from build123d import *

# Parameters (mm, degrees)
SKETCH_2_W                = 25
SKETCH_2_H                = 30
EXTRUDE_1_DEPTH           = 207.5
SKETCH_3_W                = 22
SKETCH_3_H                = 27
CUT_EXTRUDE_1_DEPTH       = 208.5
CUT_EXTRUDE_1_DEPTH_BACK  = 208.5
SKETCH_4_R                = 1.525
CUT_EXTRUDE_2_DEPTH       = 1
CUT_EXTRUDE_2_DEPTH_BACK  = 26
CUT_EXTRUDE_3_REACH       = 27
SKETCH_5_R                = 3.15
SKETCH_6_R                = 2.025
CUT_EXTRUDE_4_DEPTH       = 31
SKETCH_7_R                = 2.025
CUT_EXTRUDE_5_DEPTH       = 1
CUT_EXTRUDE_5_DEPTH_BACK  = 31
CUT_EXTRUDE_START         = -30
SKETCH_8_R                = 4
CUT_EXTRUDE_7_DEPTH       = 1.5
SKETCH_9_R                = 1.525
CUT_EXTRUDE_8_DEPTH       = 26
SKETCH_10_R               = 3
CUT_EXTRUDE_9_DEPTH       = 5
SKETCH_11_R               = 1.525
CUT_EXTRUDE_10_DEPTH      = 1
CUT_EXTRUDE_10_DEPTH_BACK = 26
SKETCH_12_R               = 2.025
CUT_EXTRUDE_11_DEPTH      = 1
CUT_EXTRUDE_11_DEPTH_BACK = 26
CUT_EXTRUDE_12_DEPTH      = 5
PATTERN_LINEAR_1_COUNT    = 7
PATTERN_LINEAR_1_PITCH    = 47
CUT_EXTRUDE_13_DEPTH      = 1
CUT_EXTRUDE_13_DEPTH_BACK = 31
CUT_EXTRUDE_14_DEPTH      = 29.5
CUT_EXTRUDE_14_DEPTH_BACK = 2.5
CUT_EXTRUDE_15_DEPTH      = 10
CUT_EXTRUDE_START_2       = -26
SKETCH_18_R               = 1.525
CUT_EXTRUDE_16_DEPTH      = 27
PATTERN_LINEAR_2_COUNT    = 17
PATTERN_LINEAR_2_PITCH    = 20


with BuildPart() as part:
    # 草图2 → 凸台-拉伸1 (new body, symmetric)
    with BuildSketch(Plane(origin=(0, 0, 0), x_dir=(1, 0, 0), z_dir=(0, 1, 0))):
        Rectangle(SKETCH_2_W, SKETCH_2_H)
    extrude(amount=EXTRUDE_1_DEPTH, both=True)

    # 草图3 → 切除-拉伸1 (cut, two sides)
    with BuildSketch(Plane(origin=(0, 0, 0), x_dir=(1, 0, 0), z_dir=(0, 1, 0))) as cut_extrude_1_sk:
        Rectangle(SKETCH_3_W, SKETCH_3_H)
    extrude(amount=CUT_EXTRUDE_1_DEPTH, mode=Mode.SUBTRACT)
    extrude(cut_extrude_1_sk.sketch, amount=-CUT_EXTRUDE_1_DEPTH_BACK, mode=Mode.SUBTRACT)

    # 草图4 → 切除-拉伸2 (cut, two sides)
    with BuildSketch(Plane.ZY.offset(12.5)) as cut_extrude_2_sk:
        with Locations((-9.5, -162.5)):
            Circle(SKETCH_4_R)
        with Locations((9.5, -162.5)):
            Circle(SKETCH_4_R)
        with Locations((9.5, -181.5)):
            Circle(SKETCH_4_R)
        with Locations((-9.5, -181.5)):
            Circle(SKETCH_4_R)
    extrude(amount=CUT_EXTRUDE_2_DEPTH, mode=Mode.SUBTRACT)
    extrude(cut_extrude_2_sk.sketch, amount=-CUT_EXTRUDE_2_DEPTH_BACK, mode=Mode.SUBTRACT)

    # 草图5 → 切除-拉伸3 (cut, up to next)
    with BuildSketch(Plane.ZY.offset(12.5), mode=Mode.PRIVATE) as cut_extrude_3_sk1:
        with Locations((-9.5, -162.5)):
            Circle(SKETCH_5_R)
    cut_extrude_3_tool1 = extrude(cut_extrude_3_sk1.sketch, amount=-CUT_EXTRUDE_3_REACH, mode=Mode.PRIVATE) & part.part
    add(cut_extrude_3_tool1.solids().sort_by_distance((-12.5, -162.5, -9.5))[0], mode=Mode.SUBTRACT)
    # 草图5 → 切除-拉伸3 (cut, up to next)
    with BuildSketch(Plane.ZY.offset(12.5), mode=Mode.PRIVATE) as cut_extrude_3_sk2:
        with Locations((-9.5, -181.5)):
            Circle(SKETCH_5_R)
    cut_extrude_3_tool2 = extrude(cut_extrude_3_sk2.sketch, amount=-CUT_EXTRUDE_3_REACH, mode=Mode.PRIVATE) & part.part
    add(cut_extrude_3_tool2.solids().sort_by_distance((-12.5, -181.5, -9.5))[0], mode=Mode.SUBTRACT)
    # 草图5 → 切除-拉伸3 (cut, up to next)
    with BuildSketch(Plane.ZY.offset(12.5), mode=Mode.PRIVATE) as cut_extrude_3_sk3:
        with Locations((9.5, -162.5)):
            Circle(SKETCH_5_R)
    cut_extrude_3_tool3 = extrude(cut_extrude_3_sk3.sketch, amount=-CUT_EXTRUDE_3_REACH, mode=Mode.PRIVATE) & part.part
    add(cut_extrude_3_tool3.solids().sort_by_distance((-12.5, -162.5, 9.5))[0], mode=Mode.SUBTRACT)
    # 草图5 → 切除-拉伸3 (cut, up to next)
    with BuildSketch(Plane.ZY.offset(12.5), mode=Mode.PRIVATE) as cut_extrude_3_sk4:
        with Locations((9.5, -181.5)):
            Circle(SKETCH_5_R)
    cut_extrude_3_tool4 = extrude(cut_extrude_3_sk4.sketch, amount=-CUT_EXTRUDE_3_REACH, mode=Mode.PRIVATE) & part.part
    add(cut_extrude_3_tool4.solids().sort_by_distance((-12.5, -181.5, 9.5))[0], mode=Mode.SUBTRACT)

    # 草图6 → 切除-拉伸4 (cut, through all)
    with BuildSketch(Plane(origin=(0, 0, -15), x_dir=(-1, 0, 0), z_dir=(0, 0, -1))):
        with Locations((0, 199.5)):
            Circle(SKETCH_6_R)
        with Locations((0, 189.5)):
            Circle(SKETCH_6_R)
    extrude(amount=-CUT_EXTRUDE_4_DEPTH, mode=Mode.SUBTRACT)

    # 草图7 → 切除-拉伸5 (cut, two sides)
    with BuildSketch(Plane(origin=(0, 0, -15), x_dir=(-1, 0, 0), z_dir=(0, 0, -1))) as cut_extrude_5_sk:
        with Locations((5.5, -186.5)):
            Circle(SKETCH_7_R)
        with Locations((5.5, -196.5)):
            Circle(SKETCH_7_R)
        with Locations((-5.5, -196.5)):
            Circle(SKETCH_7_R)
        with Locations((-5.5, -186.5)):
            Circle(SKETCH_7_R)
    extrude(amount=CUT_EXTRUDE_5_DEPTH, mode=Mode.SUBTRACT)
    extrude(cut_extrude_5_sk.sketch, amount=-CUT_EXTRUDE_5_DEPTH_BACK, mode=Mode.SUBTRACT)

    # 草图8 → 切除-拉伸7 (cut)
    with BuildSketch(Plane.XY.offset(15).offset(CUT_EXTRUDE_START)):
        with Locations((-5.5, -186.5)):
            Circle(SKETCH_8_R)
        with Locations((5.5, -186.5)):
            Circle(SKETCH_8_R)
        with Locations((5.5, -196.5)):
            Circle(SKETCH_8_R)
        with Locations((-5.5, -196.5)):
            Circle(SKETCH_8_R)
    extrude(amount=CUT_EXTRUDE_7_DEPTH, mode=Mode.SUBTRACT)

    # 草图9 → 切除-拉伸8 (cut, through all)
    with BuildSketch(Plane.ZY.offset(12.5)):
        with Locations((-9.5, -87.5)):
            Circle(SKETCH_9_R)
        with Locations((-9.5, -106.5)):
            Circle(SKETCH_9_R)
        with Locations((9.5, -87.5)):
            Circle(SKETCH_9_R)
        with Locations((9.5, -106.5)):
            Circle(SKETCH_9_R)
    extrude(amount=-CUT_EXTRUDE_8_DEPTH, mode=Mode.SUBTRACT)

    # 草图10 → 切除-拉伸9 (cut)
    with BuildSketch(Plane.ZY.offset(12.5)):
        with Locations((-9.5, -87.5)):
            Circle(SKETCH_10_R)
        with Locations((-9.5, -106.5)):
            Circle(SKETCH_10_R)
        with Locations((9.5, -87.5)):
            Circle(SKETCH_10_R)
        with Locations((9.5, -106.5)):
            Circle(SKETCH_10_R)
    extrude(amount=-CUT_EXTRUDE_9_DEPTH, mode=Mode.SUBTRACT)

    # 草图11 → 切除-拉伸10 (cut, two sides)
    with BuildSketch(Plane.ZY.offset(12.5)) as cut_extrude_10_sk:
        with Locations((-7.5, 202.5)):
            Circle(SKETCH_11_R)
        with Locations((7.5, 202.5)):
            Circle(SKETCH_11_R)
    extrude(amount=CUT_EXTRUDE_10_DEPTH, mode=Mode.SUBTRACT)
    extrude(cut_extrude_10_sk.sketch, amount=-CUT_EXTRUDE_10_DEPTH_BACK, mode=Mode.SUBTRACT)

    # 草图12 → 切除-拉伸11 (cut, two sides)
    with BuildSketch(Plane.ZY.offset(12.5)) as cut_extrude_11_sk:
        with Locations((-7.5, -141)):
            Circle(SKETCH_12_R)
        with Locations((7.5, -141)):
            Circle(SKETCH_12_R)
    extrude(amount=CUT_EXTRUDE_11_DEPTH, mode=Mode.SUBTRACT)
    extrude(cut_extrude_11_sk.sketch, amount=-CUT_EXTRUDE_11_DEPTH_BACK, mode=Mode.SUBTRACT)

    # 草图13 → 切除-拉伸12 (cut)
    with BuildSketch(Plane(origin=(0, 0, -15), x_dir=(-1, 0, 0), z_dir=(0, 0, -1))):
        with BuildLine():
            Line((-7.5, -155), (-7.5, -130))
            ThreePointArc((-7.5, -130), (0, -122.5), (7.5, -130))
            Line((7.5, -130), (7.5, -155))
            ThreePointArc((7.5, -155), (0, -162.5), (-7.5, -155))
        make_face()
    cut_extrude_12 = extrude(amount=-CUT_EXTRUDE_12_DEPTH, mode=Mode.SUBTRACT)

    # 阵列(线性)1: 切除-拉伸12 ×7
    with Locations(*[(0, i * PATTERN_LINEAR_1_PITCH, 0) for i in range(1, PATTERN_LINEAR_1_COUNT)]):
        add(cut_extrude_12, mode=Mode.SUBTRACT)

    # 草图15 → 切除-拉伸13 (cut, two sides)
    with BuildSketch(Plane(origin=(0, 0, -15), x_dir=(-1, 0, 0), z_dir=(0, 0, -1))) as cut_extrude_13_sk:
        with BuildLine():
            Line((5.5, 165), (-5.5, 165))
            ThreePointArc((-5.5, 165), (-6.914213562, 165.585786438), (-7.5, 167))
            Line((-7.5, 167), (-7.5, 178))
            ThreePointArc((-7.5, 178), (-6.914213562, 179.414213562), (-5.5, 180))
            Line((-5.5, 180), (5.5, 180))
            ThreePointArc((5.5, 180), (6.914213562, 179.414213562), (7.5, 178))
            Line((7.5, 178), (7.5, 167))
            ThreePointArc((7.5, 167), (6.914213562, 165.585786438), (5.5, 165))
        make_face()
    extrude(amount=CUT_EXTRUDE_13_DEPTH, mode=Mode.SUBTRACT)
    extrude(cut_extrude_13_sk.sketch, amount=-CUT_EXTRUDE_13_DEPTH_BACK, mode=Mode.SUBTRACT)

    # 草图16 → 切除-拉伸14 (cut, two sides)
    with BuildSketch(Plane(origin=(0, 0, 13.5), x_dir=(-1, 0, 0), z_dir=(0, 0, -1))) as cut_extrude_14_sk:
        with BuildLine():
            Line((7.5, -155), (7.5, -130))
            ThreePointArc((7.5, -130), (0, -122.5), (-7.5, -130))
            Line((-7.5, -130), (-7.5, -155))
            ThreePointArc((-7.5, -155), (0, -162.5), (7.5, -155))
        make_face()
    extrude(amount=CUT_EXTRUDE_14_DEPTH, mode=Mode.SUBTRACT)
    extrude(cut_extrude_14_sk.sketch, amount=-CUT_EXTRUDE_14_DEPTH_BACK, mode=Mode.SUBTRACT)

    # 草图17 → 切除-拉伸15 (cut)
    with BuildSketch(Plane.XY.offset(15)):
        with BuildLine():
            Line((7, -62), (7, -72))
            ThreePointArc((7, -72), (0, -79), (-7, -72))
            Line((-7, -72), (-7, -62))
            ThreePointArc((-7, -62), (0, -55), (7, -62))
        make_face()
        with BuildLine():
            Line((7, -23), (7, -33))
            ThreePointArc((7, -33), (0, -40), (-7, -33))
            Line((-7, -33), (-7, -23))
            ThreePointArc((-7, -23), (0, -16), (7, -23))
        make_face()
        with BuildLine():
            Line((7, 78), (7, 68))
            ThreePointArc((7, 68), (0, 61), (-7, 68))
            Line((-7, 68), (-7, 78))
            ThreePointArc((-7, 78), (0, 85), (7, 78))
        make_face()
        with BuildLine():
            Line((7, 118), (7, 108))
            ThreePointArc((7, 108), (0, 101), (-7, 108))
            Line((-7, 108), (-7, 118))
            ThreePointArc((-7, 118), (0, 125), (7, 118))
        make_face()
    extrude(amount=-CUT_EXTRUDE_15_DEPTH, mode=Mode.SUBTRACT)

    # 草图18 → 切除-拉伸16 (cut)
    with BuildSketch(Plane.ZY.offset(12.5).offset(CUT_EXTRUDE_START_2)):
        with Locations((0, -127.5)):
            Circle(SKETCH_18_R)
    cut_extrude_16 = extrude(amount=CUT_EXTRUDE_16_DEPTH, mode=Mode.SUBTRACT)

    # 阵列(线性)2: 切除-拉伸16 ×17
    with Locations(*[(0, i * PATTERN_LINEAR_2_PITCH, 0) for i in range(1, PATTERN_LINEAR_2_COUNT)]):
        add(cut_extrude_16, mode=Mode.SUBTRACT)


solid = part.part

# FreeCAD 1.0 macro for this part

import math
import FreeCAD as App
import Part
import Sketcher

V = App.Vector
Q = App.Units.Quantity


def add_polygon(sketch, points):
    """Adds a closed chain of lines whose ends are joined by coincident constraints."""
    first, n = sketch.GeometryCount, len(points)
    for a, b in zip(points, points[1:] + points[:1]):
        sketch.addGeometry(Part.LineSegment(App.Vector(*a, 0), App.Vector(*b, 0)), False)
    for i in range(n):
        sketch.addConstraint(Sketcher.Constraint("Coincident", first + i, 2, first + (i + 1) % n, 1))

doc = App.newDocument("Part")
body = doc.addObject("PartDesign::Body", "Body")

sketch1 = body.newObject("Sketcher::SketchObject", "Sketch")
sketch1.AttachmentSupport = (doc.getObject("XZ_Plane"), [""])
sketch1.MapMode = "FlatFace"
add_polygon(sketch1, [(-12, -15), (-12, 15), (12, 15), (12, -15)])
sketch1.addConstraint([
    Sketcher.Constraint("Vertical", 0),
    Sketcher.Constraint("Horizontal", 1),
    Sketcher.Constraint("Vertical", 2),
    Sketcher.Constraint("Horizontal", 3),
    Sketcher.Constraint("Symmetric", 0, 2, 2, 2, -1, 1),
    Sketcher.Constraint("DistanceX", 1, 1, 1, 2, Q("25 mm")),
    Sketcher.Constraint("DistanceY", 0, 1, 0, 2, Q("30 mm")),
])
pad1 = body.newObject("PartDesign::Pad", "Pad")
pad1.Profile = sketch1
pad1.Length = 415
pad1.Midplane = True

sketch2 = body.newObject("Sketcher::SketchObject", "Sketch001")
sketch2.AttachmentSupport = (doc.getObject("XZ_Plane"), [""])
sketch2.MapMode = "FlatFace"
add_polygon(sketch2, [(-11, -14), (-11, 14), (11, 14), (11, -14)])
sketch2.addConstraint([
    Sketcher.Constraint("Vertical", 0),
    Sketcher.Constraint("Horizontal", 1),
    Sketcher.Constraint("Vertical", 2),
    Sketcher.Constraint("Horizontal", 3),
    Sketcher.Constraint("Symmetric", 0, 2, 2, 2, -1, 1),
    Sketcher.Constraint("DistanceX", 1, 1, 1, 2, Q("22 mm")),
    Sketcher.Constraint("DistanceY", 0, 1, 0, 2, Q("27 mm")),
])
pocket1 = body.newObject("PartDesign::Pocket", "Pocket")
pocket1.Profile = sketch2
pocket1.Type = "ThroughAll"
pocket1.Midplane = True

sketch3 = body.newObject("Sketcher::SketchObject", "Sketch002")
sketch3.AttachmentSupport = (doc.getObject("YZ_Plane"), [""])
sketch3.MapMode = "FlatFace"
sketch3.AttachmentOffset = App.Placement(V(0, 0, -12.5), App.Rotation())
sketch3.addGeometry([
    Part.Circle(V(-162.5, -9.5, 0), V(0, 0, 1), 1.5),
    Part.Circle(V(-162.5, 9.5, 0), V(0, 0, 1), 1.5),
    Part.Circle(V(-181.5, 9.5, 0), V(0, 0, 1), 1.5),
    Part.Circle(V(-181.5, -9.5, 0), V(0, 0, 1), 1.5),
], False)
sketch3.addConstraint([
    Sketcher.Constraint("Equal", 0, 1),
    Sketcher.Constraint("Equal", 1, 2),
    Sketcher.Constraint("Equal", 2, 3),
    Sketcher.Constraint("Symmetric", 0, 3, 1, 3, -1),
    Sketcher.Constraint("Symmetric", 2, 3, 3, 3, -1),
    Sketcher.Constraint("Horizontal", 1, 3, 2, 3),
    Sketcher.Constraint("Diameter", 0, Q("3.05 mm")),
    Sketcher.Constraint("DistanceY", 0, 3, 1, 3, Q("19 mm")),
    Sketcher.Constraint("DistanceX", 2, 3, 1, 3, Q("19 mm")),
    Sketcher.Constraint("DistanceX", 0, 3, -1, 1, Q("162.5 mm")),
])
pocket2 = body.newObject("PartDesign::Pocket", "Pocket001")
pocket2.Profile = sketch3
pocket2.Type = "ThroughAll"
pocket2.Midplane = True

sketch4 = body.newObject("Sketcher::SketchObject", "Sketch003")
sketch4.AttachmentSupport = (doc.getObject("YZ_Plane"), [""])
sketch4.MapMode = "FlatFace"
sketch4.AttachmentOffset = App.Placement(V(0, 0, -12.5), App.Rotation())
sketch4.addGeometry(Part.Circle(V(-162.5, -9.5, 0), V(0, 0, 1), 3.1), False)
sketch4.addConstraint([
    Sketcher.Constraint("Diameter", 0, Q("6.3 mm")),
    Sketcher.Constraint("DistanceX", 0, 3, -1, 1, Q("162.5 mm")),
    Sketcher.Constraint("DistanceY", 0, 3, -1, 1, Q("9.5 mm")),
])
pocket3 = body.newObject("PartDesign::Pocket", "Pocket002")
pocket3.Profile = sketch4
pocket3.Length = 1.5
pocket3.Reversed = True

sketch5 = body.newObject("Sketcher::SketchObject", "Sketch004")
sketch5.AttachmentSupport = (doc.getObject("YZ_Plane"), [""])
sketch5.MapMode = "FlatFace"
sketch5.AttachmentOffset = App.Placement(V(0, 0, -12.5), App.Rotation())
sketch5.addGeometry(Part.Circle(V(-181.5, -9.5, 0), V(0, 0, 1), 3.1), False)
sketch5.addConstraint([
    Sketcher.Constraint("Diameter", 0, Q("6.3 mm")),
    Sketcher.Constraint("DistanceX", 0, 3, -1, 1, Q("181.5 mm")),
    Sketcher.Constraint("DistanceY", 0, 3, -1, 1, Q("9.5 mm")),
])
pocket4 = body.newObject("PartDesign::Pocket", "Pocket003")
pocket4.Profile = sketch5
pocket4.Length = 1.5
pocket4.Reversed = True

sketch6 = body.newObject("Sketcher::SketchObject", "Sketch005")
sketch6.AttachmentSupport = (doc.getObject("YZ_Plane"), [""])
sketch6.MapMode = "FlatFace"
sketch6.AttachmentOffset = App.Placement(V(0, 0, -12.5), App.Rotation())
sketch6.addGeometry(Part.Circle(V(-162.5, 9.5, 0), V(0, 0, 1), 3.1), False)
sketch6.addConstraint([
    Sketcher.Constraint("Diameter", 0, Q("6.3 mm")),
    Sketcher.Constraint("DistanceX", 0, 3, -1, 1, Q("162.5 mm")),
    Sketcher.Constraint("DistanceY", -1, 1, 0, 3, Q("9.5 mm")),
])
pocket5 = body.newObject("PartDesign::Pocket", "Pocket004")
pocket5.Profile = sketch6
pocket5.Length = 1.5
pocket5.Reversed = True

sketch7 = body.newObject("Sketcher::SketchObject", "Sketch006")
sketch7.AttachmentSupport = (doc.getObject("YZ_Plane"), [""])
sketch7.MapMode = "FlatFace"
sketch7.AttachmentOffset = App.Placement(V(0, 0, -12.5), App.Rotation())
sketch7.addGeometry(Part.Circle(V(-181.5, 9.5, 0), V(0, 0, 1), 3.1), False)
sketch7.addConstraint([
    Sketcher.Constraint("Diameter", 0, Q("6.3 mm")),
    Sketcher.Constraint("DistanceX", 0, 3, -1, 1, Q("181.5 mm")),
    Sketcher.Constraint("DistanceY", -1, 1, 0, 3, Q("9.5 mm")),
])
pocket6 = body.newObject("PartDesign::Pocket", "Pocket005")
pocket6.Profile = sketch7
pocket6.Length = 1.5
pocket6.Reversed = True

sketch8 = body.newObject("Sketcher::SketchObject", "Sketch007")
sketch8.AttachmentSupport = (doc.getObject("XY_Plane"), [""])
sketch8.MapMode = "FlatFace"
sketch8.AttachmentOffset = App.Placement(V(0, 0, -15), App.Rotation())
sketch8.addGeometry([
    Part.Circle(V(0, 199.5, 0), V(0, 0, 1), 2),
    Part.Circle(V(0, 189.5, 0), V(0, 0, 1), 2),
], False)
sketch8.addConstraint([
    Sketcher.Constraint("Equal", 0, 1),
    Sketcher.Constraint("PointOnObject", 0, 3, -2),
    Sketcher.Constraint("PointOnObject", 1, 3, -2),
    Sketcher.Constraint("Diameter", 0, Q("4.05 mm")),
    Sketcher.Constraint("DistanceY", 1, 3, 0, 3, Q("10 mm")),
    Sketcher.Constraint("DistanceY", -1, 1, 0, 3, Q("199.5 mm")),
])
pocket7 = body.newObject("PartDesign::Pocket", "Pocket006")
pocket7.Profile = sketch8
pocket7.Type = "ThroughAll"
pocket7.Reversed = True

sketch9 = body.newObject("Sketcher::SketchObject", "Sketch008")
sketch9.AttachmentSupport = (doc.getObject("XY_Plane"), [""])
sketch9.MapMode = "FlatFace"
sketch9.AttachmentOffset = App.Placement(V(0, 0, -15), App.Rotation())
sketch9.addGeometry([
    Part.Circle(V(-5.5, -186.5, 0), V(0, 0, 1), 2),
    Part.Circle(V(-5.5, -196.5, 0), V(0, 0, 1), 2),
    Part.Circle(V(5.5, -196.5, 0), V(0, 0, 1), 2),
    Part.Circle(V(5.5, -186.5, 0), V(0, 0, 1), 2),
], False)
sketch9.addConstraint([
    Sketcher.Constraint("Equal", 0, 1),
    Sketcher.Constraint("Equal", 1, 2),
    Sketcher.Constraint("Equal", 2, 3),
    Sketcher.Constraint("Symmetric", 1, 3, 2, 3, -2),
    Sketcher.Constraint("Symmetric", 0, 3, 3, 3, -2),
    Sketcher.Constraint("Vertical", 0, 3, 1, 3),
    Sketcher.Constraint("Diameter", 0, Q("4.05 mm")),
    Sketcher.Constraint("DistanceY", 1, 3, 0, 3, Q("10 mm")),
    Sketcher.Constraint("DistanceX", 1, 3, 2, 3, Q("11 mm")),
    Sketcher.Constraint("DistanceY", 0, 3, -1, 1, Q("186.5 mm")),
])
pocket8 = body.newObject("PartDesign::Pocket", "Pocket007")
pocket8.Profile = sketch9
pocket8.Type = "ThroughAll"
pocket8.Midplane = True

sketch10 = body.newObject("Sketcher::SketchObject", "Sketch009")
sketch10.AttachmentSupport = (doc.getObject("XY_Plane"), [""])
sketch10.MapMode = "FlatFace"
sketch10.AttachmentOffset = App.Placement(V(0, 0, -15), App.Rotation())
sketch10.addGeometry([
    Part.Circle(V(-5.5, -186.5, 0), V(0, 0, 1), 4),
    Part.Circle(V(5.5, -186.5, 0), V(0, 0, 1), 4),
    Part.Circle(V(5.5, -196.5, 0), V(0, 0, 1), 4),
    Part.Circle(V(-5.5, -196.5, 0), V(0, 0, 1), 4),
], False)
sketch10.addConstraint([
    Sketcher.Constraint("Equal", 0, 1),
    Sketcher.Constraint("Equal", 1, 2),
    Sketcher.Constraint("Equal", 2, 3),
    Sketcher.Constraint("Symmetric", 0, 3, 1, 3, -2),
    Sketcher.Constraint("Symmetric", 2, 3, 3, 3, -2),
    Sketcher.Constraint("Vertical", 1, 3, 2, 3),
    Sketcher.Constraint("Diameter", 0, Q("8 mm")),
    Sketcher.Constraint("DistanceX", 0, 3, 1, 3, Q("11 mm")),
    Sketcher.Constraint("DistanceY", 2, 3, 1, 3, Q("10 mm")),
    Sketcher.Constraint("DistanceY", 0, 3, -1, 1, Q("186.5 mm")),
])
pocket9 = body.newObject("PartDesign::Pocket", "Pocket008")
pocket9.Profile = sketch10
pocket9.Length = 1.5
pocket9.Reversed = True

sketch11 = body.newObject("Sketcher::SketchObject", "Sketch010")
sketch11.AttachmentSupport = (doc.getObject("YZ_Plane"), [""])
sketch11.MapMode = "FlatFace"
sketch11.AttachmentOffset = App.Placement(V(0, 0, -12.5), App.Rotation())
sketch11.addGeometry([
    Part.Circle(V(-87.5, -9.5, 0), V(0, 0, 1), 1.5),
    Part.Circle(V(-106.5, -9.5, 0), V(0, 0, 1), 1.5),
    Part.Circle(V(-87.5, 9.5, 0), V(0, 0, 1), 1.5),
    Part.Circle(V(-106.5, 9.5, 0), V(0, 0, 1), 1.5),
], False)
sketch11.addConstraint([
    Sketcher.Constraint("Equal", 0, 1),
    Sketcher.Constraint("Equal", 1, 2),
    Sketcher.Constraint("Equal", 2, 3),
    Sketcher.Constraint("Symmetric", 0, 3, 2, 3, -1),
    Sketcher.Constraint("Symmetric", 1, 3, 3, 3, -1),
    Sketcher.Constraint("Horizontal", 0, 3, 1, 3),
    Sketcher.Constraint("Diameter", 0, Q("3.05 mm")),
    Sketcher.Constraint("DistanceX", 1, 3, 0, 3, Q("19 mm")),
    Sketcher.Constraint("DistanceY", 0, 3, 2, 3, Q("19 mm")),
    Sketcher.Constraint("DistanceX", 0, 3, -1, 1, Q("87.5 mm")),
])
pocket10 = body.newObject("PartDesign::Pocket", "Pocket009")
pocket10.Profile = sketch11
pocket10.Type = "ThroughAll"
pocket10.Reversed = True

sketch12 = body.newObject("Sketcher::SketchObject", "Sketch011")
sketch12.AttachmentSupport = (doc.getObject("YZ_Plane"), [""])
sketch12.MapMode = "FlatFace"
sketch12.AttachmentOffset = App.Placement(V(0, 0, -12.5), App.Rotation())
sketch12.addGeometry([
    Part.Circle(V(-87.5, -9.5, 0), V(0, 0, 1), 3),
    Part.Circle(V(-106.5, -9.5, 0), V(0, 0, 1), 3),
    Part.Circle(V(-87.5, 9.5, 0), V(0, 0, 1), 3),
    Part.Circle(V(-106.5, 9.5, 0), V(0, 0, 1), 3),
], False)
sketch12.addConstraint([
    Sketcher.Constraint("Equal", 0, 1),
    Sketcher.Constraint("Equal", 1, 2),
    Sketcher.Constraint("Equal", 2, 3),
    Sketcher.Constraint("Symmetric", 0, 3, 2, 3, -1),
    Sketcher.Constraint("Symmetric", 1, 3, 3, 3, -1),
    Sketcher.Constraint("Horizontal", 0, 3, 1, 3),
    Sketcher.Constraint("Diameter", 0, Q("6 mm")),
    Sketcher.Constraint("DistanceX", 1, 3, 0, 3, Q("19 mm")),
    Sketcher.Constraint("DistanceY", 0, 3, 2, 3, Q("19 mm")),
    Sketcher.Constraint("DistanceX", 0, 3, -1, 1, Q("87.5 mm")),
])
pocket11 = body.newObject("PartDesign::Pocket", "Pocket010")
pocket11.Profile = sketch12
pocket11.Length = 5
pocket11.Reversed = True

sketch13 = body.newObject("Sketcher::SketchObject", "Sketch012")
sketch13.AttachmentSupport = (doc.getObject("YZ_Plane"), [""])
sketch13.MapMode = "FlatFace"
sketch13.AttachmentOffset = App.Placement(V(0, 0, -12.5), App.Rotation())
sketch13.addGeometry([
    Part.Circle(V(202.5, -7.5, 0), V(0, 0, 1), 1.5),
    Part.Circle(V(202.5, 7.5, 0), V(0, 0, 1), 1.5),
], False)
sketch13.addConstraint([
    Sketcher.Constraint("Equal", 0, 1),
    Sketcher.Constraint("Symmetric", 0, 3, 1, 3, -1),
    Sketcher.Constraint("Diameter", 0, Q("3.05 mm")),
    Sketcher.Constraint("DistanceY", 0, 3, 1, 3, Q("15 mm")),
    Sketcher.Constraint("DistanceX", -1, 1, 0, 3, Q("202.5 mm")),
])
pocket12 = body.newObject("PartDesign::Pocket", "Pocket011")
pocket12.Profile = sketch13
pocket12.Type = "ThroughAll"
pocket12.Midplane = True

sketch14 = body.newObject("Sketcher::SketchObject", "Sketch013")
sketch14.AttachmentSupport = (doc.getObject("YZ_Plane"), [""])
sketch14.MapMode = "FlatFace"
sketch14.AttachmentOffset = App.Placement(V(0, 0, -12.5), App.Rotation())
sketch14.addGeometry([
    Part.Circle(V(-141, -7.5, 0), V(0, 0, 1), 2),
    Part.Circle(V(-141, 7.5, 0), V(0, 0, 1), 2),
], False)
sketch14.addConstraint([
    Sketcher.Constraint("Equal", 0, 1),
    Sketcher.Constraint("Symmetric", 0, 3, 1, 3, -1),
    Sketcher.Constraint("Diameter", 0, Q("4.05 mm")),
    Sketcher.Constraint("DistanceX", 0, 3, -1, 1, Q("141 mm")),
    Sketcher.Constraint("DistanceY", 0, 3, 1, 3, Q("15 mm")),
])
pocket13 = body.newObject("PartDesign::Pocket", "Pocket012")
pocket13.Profile = sketch14
pocket13.Type = "ThroughAll"
pocket13.Midplane = True

sketch15 = body.newObject("Sketcher::SketchObject", "Sketch014")
sketch15.AttachmentSupport = (doc.getObject("XY_Plane"), [""])
sketch15.MapMode = "FlatFace"
sketch15.AttachmentOffset = App.Placement(V(0, 0, -15), App.Rotation())
sketch15.addGeometry([
    Part.LineSegment(V(8, -130, 0), V(8, -155, 0)),
    Part.ArcOfCircle(Part.Circle(V(0, -155, 0), V(0, 0, 1), 8), math.radians(180), math.radians(360)),
    Part.LineSegment(V(-8, -155, 0), V(-8, -130, 0)),
    Part.ArcOfCircle(Part.Circle(V(0, -130, 0), V(0, 0, 1), 8), math.radians(0), math.radians(180)),
], False)
sketch15.addConstraint([
    Sketcher.Constraint("Tangent", 0, 2, 1, 2),
    Sketcher.Constraint("Tangent", 1, 1, 2, 1),
    Sketcher.Constraint("Tangent", 2, 2, 3, 2),
    Sketcher.Constraint("Tangent", 3, 1, 0, 1),
    Sketcher.Constraint("Vertical", 0),
    Sketcher.Constraint("Vertical", 2),
    Sketcher.Constraint("PointOnObject", 1, 3, -2),
    Sketcher.Constraint("Radius", 1, Q("7.5 mm")),
    Sketcher.Constraint("DistanceY", 0, 2, 0, 1, Q("25 mm")),
    Sketcher.Constraint("DistanceY", 1, 3, -1, 1, Q("155 mm")),
])
pocket14 = body.newObject("PartDesign::Pocket", "Pocket013")
pocket14.Profile = sketch15
pocket14.Length = 5
pocket14.Reversed = True
doc.recompute()

linearpattern = body.newObject("PartDesign::LinearPattern", "LinearPattern")
linearpattern.Originals = [pocket14]
linearpattern.Direction = (doc.getObject("Y_Axis"), [""])
linearpattern.Mode = "offset"
linearpattern.Offset = 47
linearpattern.Occurrences = 7
body.Tip = linearpattern

sketch16 = body.newObject("Sketcher::SketchObject", "Sketch015")
sketch16.AttachmentSupport = (doc.getObject("XY_Plane"), [""])
sketch16.MapMode = "FlatFace"
sketch16.AttachmentOffset = App.Placement(V(0, 0, -15), App.Rotation())
sketch16.addGeometry([
    Part.LineSegment(V(5.5, 165, 0), V(-5.5, 165, 0)),
    Part.ArcOfCircle(Part.Circle(V(-5.5, 167, 0), V(0, 0, 1), 2), math.radians(-180), math.radians(-90)),
    Part.LineSegment(V(-7.5, 167, 0), V(-7.5, 178, 0)),
    Part.ArcOfCircle(Part.Circle(V(-5.5, 178, 0), V(0, 0, 1), 2), math.radians(90), math.radians(180)),
    Part.LineSegment(V(-5.5, 180, 0), V(5.5, 180, 0)),
    Part.ArcOfCircle(Part.Circle(V(5.5, 178, 0), V(0, 0, 1), 2), math.radians(0), math.radians(90)),
    Part.LineSegment(V(7.5, 178, 0), V(7.5, 167, 0)),
    Part.ArcOfCircle(Part.Circle(V(5.5, 167, 0), V(0, 0, 1), 2), math.radians(-90), math.radians(0)),
], False)
sketch16.addConstraint([
    Sketcher.Constraint("Tangent", 0, 2, 1, 2),
    Sketcher.Constraint("Tangent", 1, 1, 2, 1),
    Sketcher.Constraint("Tangent", 2, 2, 3, 2),
    Sketcher.Constraint("Tangent", 3, 1, 4, 1),
    Sketcher.Constraint("Tangent", 4, 2, 5, 2),
    Sketcher.Constraint("Tangent", 5, 1, 6, 1),
    Sketcher.Constraint("Tangent", 6, 2, 7, 2),
    Sketcher.Constraint("Tangent", 7, 1, 0, 1),
    Sketcher.Constraint("Horizontal", 0),
    Sketcher.Constraint("Vertical", 2),
    Sketcher.Constraint("Horizontal", 4),
    Sketcher.Constraint("Vertical", 6),
    Sketcher.Constraint("Equal", 1, 3),
    Sketcher.Constraint("Equal", 3, 5),
    Sketcher.Constraint("Equal", 5, 7),
    Sketcher.Constraint("Equal", 4, 2),
    Sketcher.Constraint("Radius", 1, Q("2 mm")),
    Sketcher.Constraint("DistanceX", 0, 2, 0, 1, Q("11 mm")),
    Sketcher.Constraint("DistanceY", -1, 1, 1, 3, Q("167 mm")),
    Sketcher.Constraint("DistanceX", 1, 3, -1, 1, Q("5.5 mm")),
])
pocket15 = body.newObject("PartDesign::Pocket", "Pocket014")
pocket15.Profile = sketch16
pocket15.Type = "ThroughAll"
pocket15.Midplane = True

sketch17 = body.newObject("Sketcher::SketchObject", "Sketch016")
sketch17.AttachmentSupport = (doc.getObject("XY_Plane"), [""])
sketch17.MapMode = "FlatFace"
sketch17.AttachmentOffset = App.Placement(V(0, 0, 13.5), App.Rotation())
sketch17.addGeometry([
    Part.LineSegment(V(-8, -155, 0), V(-8, -130, 0)),
    Part.ArcOfCircle(Part.Circle(V(0, -130, 0), V(0, 0, 1), 8), math.radians(0), math.radians(180)),
    Part.LineSegment(V(8, -130, 0), V(8, -155, 0)),
    Part.ArcOfCircle(Part.Circle(V(0, -155, 0), V(0, 0, 1), 8), math.radians(180), math.radians(360)),
], False)
sketch17.addConstraint([
    Sketcher.Constraint("Tangent", 0, 2, 1, 2),
    Sketcher.Constraint("Tangent", 1, 1, 2, 1),
    Sketcher.Constraint("Tangent", 2, 2, 3, 2),
    Sketcher.Constraint("Tangent", 3, 1, 0, 1),
    Sketcher.Constraint("Vertical", 0),
    Sketcher.Constraint("Vertical", 2),
    Sketcher.Constraint("PointOnObject", 1, 3, -2),
    Sketcher.Constraint("Radius", 1, Q("7.5 mm")),
    Sketcher.Constraint("DistanceY", 0, 1, 0, 2, Q("25 mm")),
    Sketcher.Constraint("DistanceY", 1, 3, -1, 1, Q("130 mm")),
])
pocket16 = body.newObject("PartDesign::Pocket", "Pocket015")
pocket16.Profile = sketch17
pocket16.Type = "ThroughAll"
pocket16.Midplane = True

sketch18 = body.newObject("Sketcher::SketchObject", "Sketch017")
sketch18.AttachmentSupport = (doc.getObject("XY_Plane"), [""])
sketch18.MapMode = "FlatFace"
sketch18.AttachmentOffset = App.Placement(V(0, 0, 15), App.Rotation())
sketch18.addGeometry([
    Part.LineSegment(V(7, -72, 0), V(7, -62, 0)),
    Part.ArcOfCircle(Part.Circle(V(0, -62, 0), V(0, 0, 1), 7), math.radians(0), math.radians(180)),
    Part.LineSegment(V(-7, -62, 0), V(-7, -72, 0)),
    Part.ArcOfCircle(Part.Circle(V(0, -72, 0), V(0, 0, 1), 7), math.radians(180), math.radians(360)),
    Part.LineSegment(V(7, -33, 0), V(7, -23, 0)),
    Part.ArcOfCircle(Part.Circle(V(0, -23, 0), V(0, 0, 1), 7), math.radians(0), math.radians(180)),
    Part.LineSegment(V(-7, -23, 0), V(-7, -33, 0)),
    Part.ArcOfCircle(Part.Circle(V(0, -33, 0), V(0, 0, 1), 7), math.radians(180), math.radians(360)),
    Part.LineSegment(V(7, 68, 0), V(7, 78, 0)),
    Part.ArcOfCircle(Part.Circle(V(0, 78, 0), V(0, 0, 1), 7), math.radians(0), math.radians(180)),
    Part.LineSegment(V(-7, 78, 0), V(-7, 68, 0)),
    Part.ArcOfCircle(Part.Circle(V(0, 68, 0), V(0, 0, 1), 7), math.radians(180), math.radians(360)),
    Part.LineSegment(V(7, 108, 0), V(7, 118, 0)),
    Part.ArcOfCircle(Part.Circle(V(0, 118, 0), V(0, 0, 1), 7), math.radians(0), math.radians(180)),
    Part.LineSegment(V(-7, 118, 0), V(-7, 108, 0)),
    Part.ArcOfCircle(Part.Circle(V(0, 108, 0), V(0, 0, 1), 7), math.radians(180), math.radians(360)),
], False)
sketch18.addConstraint([
    Sketcher.Constraint("Tangent", 0, 2, 1, 1),
    Sketcher.Constraint("Tangent", 1, 2, 2, 1),
    Sketcher.Constraint("Tangent", 2, 2, 3, 1),
    Sketcher.Constraint("Tangent", 3, 2, 0, 1),
    Sketcher.Constraint("Tangent", 4, 2, 5, 1),
    Sketcher.Constraint("Tangent", 5, 2, 6, 1),
    Sketcher.Constraint("Tangent", 6, 2, 7, 1),
    Sketcher.Constraint("Tangent", 7, 2, 4, 1),
    Sketcher.Constraint("Tangent", 8, 2, 9, 1),
    Sketcher.Constraint("Tangent", 9, 2, 10, 1),
    Sketcher.Constraint("Tangent", 10, 2, 11, 1),
    Sketcher.Constraint("Tangent", 11, 2, 8, 1),
    Sketcher.Constraint("Tangent", 12, 2, 13, 1),
    Sketcher.Constraint("Tangent", 13, 2, 14, 1),
    Sketcher.Constraint("Tangent", 14, 2, 15, 1),
    Sketcher.Constraint("Tangent", 15, 2, 12, 1),
    Sketcher.Constraint("Vertical", 0),
    Sketcher.Constraint("Vertical", 2),
    Sketcher.Constraint("Vertical", 4),
    Sketcher.Constraint("Vertical", 6),
    Sketcher.Constraint("Vertical", 8),
    Sketcher.Constraint("Vertical", 10),
    Sketcher.Constraint("Vertical", 12),
    Sketcher.Constraint("Vertical", 14),
    Sketcher.Constraint("Equal", 3, 5),
    Sketcher.Constraint("Equal", 7, 9),
    Sketcher.Constraint("Equal", 11, 13),
    Sketcher.Constraint("PointOnObject", 1, 3, -2),
    Sketcher.Constraint("PointOnObject", 5, 3, -2),
    Sketcher.Constraint("PointOnObject", 9, 3, -2),
    Sketcher.Constraint("PointOnObject", 13, 3, -2),
    Sketcher.Constraint("Equal", 2, 4),
    Sketcher.Constraint("Equal", 6, 8),
    Sketcher.Constraint("Equal", 10, 12),
    Sketcher.Constraint("Radius", 1, Q("7 mm")),
    Sketcher.Constraint("DistanceY", 0, 1, 0, 2, Q("10 mm")),
    Sketcher.Constraint("DistanceY", 1, 3, -1, 1, Q("62 mm")),
    Sketcher.Constraint("DistanceY", 5, 3, -1, 1, Q("23 mm")),
    Sketcher.Constraint("DistanceY", -1, 1, 9, 3, Q("78 mm")),
    Sketcher.Constraint("DistanceY", -1, 1, 13, 3, Q("118 mm")),
])
pocket17 = body.newObject("PartDesign::Pocket", "Pocket016")
pocket17.Profile = sketch18
pocket17.Length = 10

sketch19 = body.newObject("Sketcher::SketchObject", "Sketch018")
sketch19.AttachmentSupport = (doc.getObject("YZ_Plane"), [""])
sketch19.MapMode = "FlatFace"
sketch19.AttachmentOffset = App.Placement(V(0, 0, 13.5), App.Rotation())
sketch19.addGeometry(Part.Circle(V(-127.5, 0, 0), V(0, 0, 1), 1.5), False)
sketch19.addConstraint([
    Sketcher.Constraint("PointOnObject", 0, 3, -1),
    Sketcher.Constraint("Diameter", 0, Q("3.05 mm")),
    Sketcher.Constraint("DistanceX", 0, 3, -1, 1, Q("127.5 mm")),
])
pocket18 = body.newObject("PartDesign::Pocket", "Pocket017")
pocket18.Profile = sketch19
pocket18.Length = 27
doc.recompute()

linearpattern2 = body.newObject("PartDesign::LinearPattern", "LinearPattern001")
linearpattern2.Originals = [pocket18]
linearpattern2.Direction = (doc.getObject("Y_Axis"), [""])
linearpattern2.Mode = "offset"
linearpattern2.Offset = 20
linearpattern2.Occurrences = 17
body.Tip = linearpattern2

doc.recompute()
